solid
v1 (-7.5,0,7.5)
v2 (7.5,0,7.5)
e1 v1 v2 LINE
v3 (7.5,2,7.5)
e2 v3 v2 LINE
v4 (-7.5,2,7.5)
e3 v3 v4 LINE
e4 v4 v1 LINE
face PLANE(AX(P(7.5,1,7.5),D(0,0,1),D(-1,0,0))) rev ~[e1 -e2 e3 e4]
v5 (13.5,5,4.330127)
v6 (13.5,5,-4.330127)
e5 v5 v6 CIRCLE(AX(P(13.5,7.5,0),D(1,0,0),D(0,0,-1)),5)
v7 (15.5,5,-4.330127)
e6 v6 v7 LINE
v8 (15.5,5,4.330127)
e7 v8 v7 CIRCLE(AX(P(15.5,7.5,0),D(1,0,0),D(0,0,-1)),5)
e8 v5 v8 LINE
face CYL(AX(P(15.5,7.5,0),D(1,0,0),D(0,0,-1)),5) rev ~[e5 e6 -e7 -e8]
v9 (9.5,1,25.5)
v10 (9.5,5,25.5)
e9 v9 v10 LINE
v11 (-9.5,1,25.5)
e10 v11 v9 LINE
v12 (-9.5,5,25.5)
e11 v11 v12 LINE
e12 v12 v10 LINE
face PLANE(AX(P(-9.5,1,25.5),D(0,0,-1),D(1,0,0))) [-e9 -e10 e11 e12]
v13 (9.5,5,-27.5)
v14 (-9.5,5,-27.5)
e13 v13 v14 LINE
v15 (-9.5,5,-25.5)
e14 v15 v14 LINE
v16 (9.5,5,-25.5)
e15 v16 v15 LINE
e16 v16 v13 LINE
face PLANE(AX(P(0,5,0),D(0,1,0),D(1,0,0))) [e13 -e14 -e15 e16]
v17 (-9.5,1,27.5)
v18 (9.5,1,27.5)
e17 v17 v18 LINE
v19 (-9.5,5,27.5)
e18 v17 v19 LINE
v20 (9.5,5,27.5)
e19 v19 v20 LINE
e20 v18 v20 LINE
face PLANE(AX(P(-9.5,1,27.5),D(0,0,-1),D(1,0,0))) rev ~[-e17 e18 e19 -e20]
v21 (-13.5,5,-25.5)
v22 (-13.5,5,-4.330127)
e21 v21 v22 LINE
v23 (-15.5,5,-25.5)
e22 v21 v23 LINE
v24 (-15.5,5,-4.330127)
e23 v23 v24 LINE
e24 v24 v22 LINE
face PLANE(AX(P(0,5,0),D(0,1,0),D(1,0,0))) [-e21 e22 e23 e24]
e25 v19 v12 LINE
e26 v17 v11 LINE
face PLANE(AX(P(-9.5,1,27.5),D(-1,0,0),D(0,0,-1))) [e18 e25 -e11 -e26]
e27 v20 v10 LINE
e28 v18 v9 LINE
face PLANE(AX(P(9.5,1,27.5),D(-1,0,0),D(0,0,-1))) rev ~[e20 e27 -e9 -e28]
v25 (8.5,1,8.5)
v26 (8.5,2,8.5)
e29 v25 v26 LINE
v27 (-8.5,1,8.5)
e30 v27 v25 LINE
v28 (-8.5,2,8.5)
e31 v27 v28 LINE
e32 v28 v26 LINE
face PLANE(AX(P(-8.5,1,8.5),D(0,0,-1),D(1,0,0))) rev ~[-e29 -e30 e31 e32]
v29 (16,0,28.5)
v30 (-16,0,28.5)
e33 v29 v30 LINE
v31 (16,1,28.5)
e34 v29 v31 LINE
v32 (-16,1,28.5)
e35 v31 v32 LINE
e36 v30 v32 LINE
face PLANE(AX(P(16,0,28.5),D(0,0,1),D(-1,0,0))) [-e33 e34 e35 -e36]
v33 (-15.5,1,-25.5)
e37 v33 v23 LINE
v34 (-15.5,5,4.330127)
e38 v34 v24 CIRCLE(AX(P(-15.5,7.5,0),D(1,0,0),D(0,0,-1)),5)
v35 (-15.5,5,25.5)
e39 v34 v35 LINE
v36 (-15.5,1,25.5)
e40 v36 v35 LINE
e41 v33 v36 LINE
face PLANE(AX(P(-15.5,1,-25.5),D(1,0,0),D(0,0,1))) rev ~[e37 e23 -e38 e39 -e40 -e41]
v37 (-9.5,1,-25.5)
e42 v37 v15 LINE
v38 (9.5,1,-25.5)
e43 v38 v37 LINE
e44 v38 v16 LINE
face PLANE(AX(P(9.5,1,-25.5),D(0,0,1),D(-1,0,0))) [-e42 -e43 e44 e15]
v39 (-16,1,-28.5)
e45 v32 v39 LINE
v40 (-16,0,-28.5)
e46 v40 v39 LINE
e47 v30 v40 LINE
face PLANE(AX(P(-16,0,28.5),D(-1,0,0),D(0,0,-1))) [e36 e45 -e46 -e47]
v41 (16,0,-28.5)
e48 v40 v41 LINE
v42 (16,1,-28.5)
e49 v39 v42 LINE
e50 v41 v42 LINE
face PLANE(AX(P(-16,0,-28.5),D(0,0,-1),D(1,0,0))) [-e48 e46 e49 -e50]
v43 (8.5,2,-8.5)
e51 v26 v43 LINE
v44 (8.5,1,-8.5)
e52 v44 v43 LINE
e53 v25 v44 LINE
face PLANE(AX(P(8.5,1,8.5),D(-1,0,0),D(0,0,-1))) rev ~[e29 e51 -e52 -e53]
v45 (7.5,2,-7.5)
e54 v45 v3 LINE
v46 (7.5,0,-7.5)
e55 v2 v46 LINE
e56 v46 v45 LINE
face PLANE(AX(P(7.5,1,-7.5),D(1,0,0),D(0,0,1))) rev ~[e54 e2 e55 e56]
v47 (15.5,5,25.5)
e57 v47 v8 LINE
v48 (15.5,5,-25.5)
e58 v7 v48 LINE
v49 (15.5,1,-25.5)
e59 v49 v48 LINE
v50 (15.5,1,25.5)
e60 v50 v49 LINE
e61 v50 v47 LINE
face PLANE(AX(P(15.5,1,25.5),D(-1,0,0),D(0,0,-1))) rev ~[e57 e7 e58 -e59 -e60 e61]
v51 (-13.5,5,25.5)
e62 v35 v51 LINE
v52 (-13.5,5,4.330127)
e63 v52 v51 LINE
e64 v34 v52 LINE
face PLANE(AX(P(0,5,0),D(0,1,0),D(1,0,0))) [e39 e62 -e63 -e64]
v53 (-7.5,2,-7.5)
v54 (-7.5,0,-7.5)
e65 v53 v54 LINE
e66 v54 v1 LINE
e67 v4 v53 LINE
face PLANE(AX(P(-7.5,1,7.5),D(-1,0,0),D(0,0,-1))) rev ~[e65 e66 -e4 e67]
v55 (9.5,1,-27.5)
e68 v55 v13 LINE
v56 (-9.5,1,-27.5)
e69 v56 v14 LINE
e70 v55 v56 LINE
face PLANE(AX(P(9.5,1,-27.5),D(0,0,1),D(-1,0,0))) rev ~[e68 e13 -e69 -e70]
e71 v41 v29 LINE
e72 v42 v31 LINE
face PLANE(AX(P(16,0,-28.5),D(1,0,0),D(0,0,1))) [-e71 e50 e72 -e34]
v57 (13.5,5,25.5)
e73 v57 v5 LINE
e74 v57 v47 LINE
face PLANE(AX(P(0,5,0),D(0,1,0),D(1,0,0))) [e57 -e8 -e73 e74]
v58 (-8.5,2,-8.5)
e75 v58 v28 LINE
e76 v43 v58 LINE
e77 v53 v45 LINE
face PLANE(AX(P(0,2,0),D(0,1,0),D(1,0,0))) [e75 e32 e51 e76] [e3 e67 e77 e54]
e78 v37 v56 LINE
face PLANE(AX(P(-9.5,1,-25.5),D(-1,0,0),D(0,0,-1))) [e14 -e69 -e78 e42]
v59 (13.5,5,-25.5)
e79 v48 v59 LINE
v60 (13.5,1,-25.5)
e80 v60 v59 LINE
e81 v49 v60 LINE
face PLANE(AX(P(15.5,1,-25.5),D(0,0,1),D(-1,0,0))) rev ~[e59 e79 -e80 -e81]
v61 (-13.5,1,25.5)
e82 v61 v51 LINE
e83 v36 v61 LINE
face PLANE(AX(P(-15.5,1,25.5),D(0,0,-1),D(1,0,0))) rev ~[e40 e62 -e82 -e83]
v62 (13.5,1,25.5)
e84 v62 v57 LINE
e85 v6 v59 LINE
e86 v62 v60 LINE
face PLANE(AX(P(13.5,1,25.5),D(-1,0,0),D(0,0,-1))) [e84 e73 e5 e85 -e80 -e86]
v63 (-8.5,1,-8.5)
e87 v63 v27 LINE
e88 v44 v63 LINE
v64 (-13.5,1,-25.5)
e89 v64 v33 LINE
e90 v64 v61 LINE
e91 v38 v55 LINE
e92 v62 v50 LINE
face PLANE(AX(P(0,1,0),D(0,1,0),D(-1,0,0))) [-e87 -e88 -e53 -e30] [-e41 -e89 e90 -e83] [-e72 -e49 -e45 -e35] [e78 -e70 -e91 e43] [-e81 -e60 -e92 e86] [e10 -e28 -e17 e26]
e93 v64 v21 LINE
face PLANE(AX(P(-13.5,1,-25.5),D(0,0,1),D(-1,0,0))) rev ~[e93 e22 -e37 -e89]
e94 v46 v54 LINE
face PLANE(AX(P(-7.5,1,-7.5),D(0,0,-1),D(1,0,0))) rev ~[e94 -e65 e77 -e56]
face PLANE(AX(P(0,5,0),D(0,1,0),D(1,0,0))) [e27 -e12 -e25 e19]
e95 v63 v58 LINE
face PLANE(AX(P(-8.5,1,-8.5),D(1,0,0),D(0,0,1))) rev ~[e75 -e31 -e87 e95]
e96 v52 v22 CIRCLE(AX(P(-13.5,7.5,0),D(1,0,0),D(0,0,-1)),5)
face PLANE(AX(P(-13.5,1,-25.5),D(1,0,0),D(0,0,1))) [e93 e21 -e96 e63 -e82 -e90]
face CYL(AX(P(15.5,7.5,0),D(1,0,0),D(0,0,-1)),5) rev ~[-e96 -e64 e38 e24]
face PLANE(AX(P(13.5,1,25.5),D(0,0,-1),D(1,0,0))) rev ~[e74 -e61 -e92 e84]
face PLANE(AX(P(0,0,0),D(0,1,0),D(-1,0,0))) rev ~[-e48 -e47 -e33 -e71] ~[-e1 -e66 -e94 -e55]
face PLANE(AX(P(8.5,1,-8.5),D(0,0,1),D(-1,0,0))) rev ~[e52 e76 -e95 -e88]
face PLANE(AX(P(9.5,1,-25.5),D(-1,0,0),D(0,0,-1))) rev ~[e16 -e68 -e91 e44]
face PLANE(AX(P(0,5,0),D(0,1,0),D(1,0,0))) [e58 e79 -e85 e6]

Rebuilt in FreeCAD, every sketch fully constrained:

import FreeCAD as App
import Part
import Sketcher


def add_polygon(sketch, points):
    """Adds a closed chain of lines whose ends are joined by coincident constraints."""
    first, n = sketch.GeometryCount, len(points)
    for a, b in zip(points, points[1:] + points[:1]):
        sketch.addGeometry(Part.LineSegment(App.Vector(*a, 0), App.Vector(*b, 0)), False)
    for i in range(n):
        sketch.addConstraint(Sketcher.Constraint("Coincident", first + i, 2, first + (i + 1) % n, 1))

doc = App.newDocument("Part")
params = doc.addObject("Spreadsheet::Sheet", "Params")
for row, (alias, value) in enumerate([
    ("sketch1_width", "32 mm"),
    ("sketch1_height", "57 mm"),
    ("pad1_length", "1 mm"),
    ("sketch2_width", "2 mm"),
    ("sketch2_width2", "19 mm"),
    ("pad2_length", "4 mm"),
    ("sketch3_diameter", "10 mm"),
    ("sketch4_width", "15 mm"),
    ("sketch5_width", "17 mm"),
    ("pad3_length", "1 mm"),
], start=1):
    params.set(f"A{row}", alias)
    params.set(f"B{row}", "=" + value)
    params.setAlias(f"B{row}", alias)

body = doc.addObject("PartDesign::Body", "Body")

sketch1 = body.newObject("Sketcher::SketchObject", "Sketch")
sketch1.AttachmentSupport = (doc.getObject("XZ_Plane"), [""])
sketch1.MapMode = "FlatFace"
add_polygon(sketch1, [(16, -28), (-16, -28), (-16, 28), (16, 28)])
sketch1.addConstraint([
    Sketcher.Constraint("Horizontal", 0),
    Sketcher.Constraint("Vertical", 1),
    Sketcher.Constraint("Horizontal", 2),
    Sketcher.Constraint("Vertical", 3),
    Sketcher.Constraint("Symmetric", 0, 2, 2, 2, -1, 1),
    Sketcher.Constraint("DistanceX", 0, 2, 0, 1, 32.0),
    Sketcher.Constraint("DistanceY", 1, 1, 1, 2, 57.0),
])
sketch1.setExpression("Constraints[9]", "Params.sketch1_width")
sketch1.setExpression("Constraints[10]", "Params.sketch1_height")
pad1 = body.newObject("PartDesign::Pad", "Pad")
pad1.Profile = sketch1
pad1.setExpression("Length", "Params.pad1_length")
pad1.Reversed = True

sketch2 = body.newObject("Sketcher::SketchObject", "Sketch001")
sketch2.AttachmentSupport = (doc.getObject("XZ_Plane"), [""])
sketch2.MapMode = "FlatFace"
sketch2.AttachmentOffset = App.Placement(App.Vector(0, 0, -1), App.Rotation())
add_polygon(sketch2, [(-9.5, 25.5), (-9.5, 27.5), (9.5, 27.5), (9.5, 25.5)])
add_polygon(sketch2, [(13.5, 25.5), (15.5, 25.5), (15.5, -25.5), (13.5, -25.5)])
add_polygon(sketch2, [(9.5, -25.5), (9.5, -27.5), (-9.5, -27.5), (-9.5, -25.5)])
add_polygon(sketch2, [(-13.5, -25.5), (-15.5, -25.5), (-15.5, 25.5), (-13.5, 25.5)])
sketch2.addConstraint([
    Sketcher.Constraint("Vertical", 0),
    Sketcher.Constraint("Horizontal", 1),
    Sketcher.Constraint("Vertical", 2),
    Sketcher.Constraint("Horizontal", 3),
    Sketcher.Constraint("Horizontal", 4),
    Sketcher.Constraint("Vertical", 5),
    Sketcher.Constraint("Horizontal", 6),
    Sketcher.Constraint("Vertical", 7),
    Sketcher.Constraint("Vertical", 8),
    Sketcher.Constraint("Horizontal", 9),
    Sketcher.Constraint("Vertical", 10),
    Sketcher.Constraint("Horizontal", 11),
    Sketcher.Constraint("Horizontal", 12),
    Sketcher.Constraint("Vertical", 13),
    Sketcher.Constraint("Horizontal", 14),
    Sketcher.Constraint("Vertical", 15),
    Sketcher.Constraint("Symmetric", 0, 2, 8, 2, -1, 1),
    Sketcher.Constraint("Symmetric", 2, 2, 10, 2, -1, 1),
    Sketcher.Constraint("Symmetric", 4, 2, 12, 2, -1, 1),
    Sketcher.Constraint("Symmetric", 6, 2, 14, 2, -1, 1),
    Sketcher.Constraint("Horizontal", 3, 2, 4, 2),
    Sketcher.Constraint("Horizontal", 6, 2, 10, 2),
    Sketcher.Constraint("Vertical", 2, 2, 8, 2),
    Sketcher.Constraint("Equal", 14, 0),
    Sketcher.Constraint("DistanceX", 4, 1, 4, 2, 2.0),
    Sketcher.Constraint("DistanceY", 9, 2, 0, 2, 55.0),
    Sketcher.Constraint("DistanceX", 1, 1, 1, 2, 19.0),
    Sketcher.Constraint("DistanceX", 2, 2, 4, 2, 6.0),
])
sketch2.setExpression("Constraints[40]", "Params.sketch2_width")
sketch2.setExpression("Constraints[42]", "Params.sketch2_width2")
pad2 = body.newObject("PartDesign::Pad", "Pad001")
pad2.Profile = sketch2
pad2.setExpression("Length", "Params.pad2_length")
pad2.Reversed = True

sketch3 = body.newObject("Sketcher::SketchObject", "Sketch002")
sketch3.AttachmentSupport = (doc.getObject("YZ_Plane"), [""])
sketch3.MapMode = "FlatFace"
sketch3.AttachmentOffset = App.Placement(App.Vector(0, 0, 15.5), App.Rotation())
sketch3.addGeometry(Part.Circle(App.Vector(8, 0, 0), App.Vector(0, 0, 1), 5), False)
sketch3.addConstraint([
    Sketcher.Constraint("PointOnObject", 0, 3, -1),
    Sketcher.Constraint("Diameter", 0, 10.0),
    Sketcher.Constraint("DistanceX", -1, 1, 0, 3, 7.5),
])
sketch3.setExpression("Constraints[1]", "Params.sketch3_diameter")
pocket1 = body.newObject("PartDesign::Pocket", "Pocket")
pocket1.Profile = sketch3
pocket1.Type = "ThroughAll"

sketch4 = body.newObject("Sketcher::SketchObject", "Sketch003")
sketch4.AttachmentSupport = (doc.getObject("XZ_Plane"), [""])
sketch4.MapMode = "FlatFace"
add_polygon(sketch4, [(-8, -8), (8, -8), (8, 8), (-8, 8)])
sketch4.addConstraint([
    Sketcher.Constraint("Horizontal", 0),
    Sketcher.Constraint("Vertical", 1),
    Sketcher.Constraint("Horizontal", 2),
    Sketcher.Constraint("Vertical", 3),
    Sketcher.Constraint("Symmetric", 0, 2, 2, 2, -1, 1),
    Sketcher.Constraint("Equal", 2, 1),
    Sketcher.Constraint("DistanceX", 0, 1, 0, 2, 15.0),
])
sketch4.setExpression("Constraints[10]", "Params.sketch4_width")
pocket2 = body.newObject("PartDesign::Pocket", "Pocket001")
pocket2.Profile = sketch4
pocket2.Type = "ThroughAll"

sketch5 = body.newObject("Sketcher::SketchObject", "Sketch004")
sketch5.AttachmentSupport = (doc.getObject("XZ_Plane"), [""])
sketch5.MapMode = "FlatFace"
sketch5.AttachmentOffset = App.Placement(App.Vector(0, 0, -1), App.Rotation())
add_polygon(sketch5, [(-8, -8), (-8, 8), (8, 8), (8, -8)])
add_polygon(sketch5, [(-8, -8), (8, -8), (8, 8), (-8, 8)])
sketch5.addConstraint([
    Sketcher.Constraint("Vertical", 0),
    Sketcher.Constraint("Horizontal", 1),
    Sketcher.Constraint("Vertical", 2),
    Sketcher.Constraint("Horizontal", 3),
    Sketcher.Constraint("Horizontal", 4),
    Sketcher.Constraint("Vertical", 5),
    Sketcher.Constraint("Horizontal", 6),
    Sketcher.Constraint("Vertical", 7),
    Sketcher.Constraint("Symmetric", 0, 2, 2, 2, -1, 1),
    Sketcher.Constraint("Symmetric", 4, 2, 6, 2, -1, 1),
    Sketcher.Constraint("Equal", 3, 0),
    Sketcher.Constraint("Equal", 6, 5),
    Sketcher.Constraint("DistanceX", 4, 2, 2, 2, 1.0),
    Sketcher.Constraint("DistanceX", 1, 1, 1, 2, 17.0),
])
sketch5.setExpression("Constraints[21]", "Params.sketch5_width")
pad3 = body.newObject("PartDesign::Pad", "Pad002")
pad3.Profile = sketch5
pad3.setExpression("Length", "Params.pad3_length")
pad3.Reversed = True

doc.recompute()
